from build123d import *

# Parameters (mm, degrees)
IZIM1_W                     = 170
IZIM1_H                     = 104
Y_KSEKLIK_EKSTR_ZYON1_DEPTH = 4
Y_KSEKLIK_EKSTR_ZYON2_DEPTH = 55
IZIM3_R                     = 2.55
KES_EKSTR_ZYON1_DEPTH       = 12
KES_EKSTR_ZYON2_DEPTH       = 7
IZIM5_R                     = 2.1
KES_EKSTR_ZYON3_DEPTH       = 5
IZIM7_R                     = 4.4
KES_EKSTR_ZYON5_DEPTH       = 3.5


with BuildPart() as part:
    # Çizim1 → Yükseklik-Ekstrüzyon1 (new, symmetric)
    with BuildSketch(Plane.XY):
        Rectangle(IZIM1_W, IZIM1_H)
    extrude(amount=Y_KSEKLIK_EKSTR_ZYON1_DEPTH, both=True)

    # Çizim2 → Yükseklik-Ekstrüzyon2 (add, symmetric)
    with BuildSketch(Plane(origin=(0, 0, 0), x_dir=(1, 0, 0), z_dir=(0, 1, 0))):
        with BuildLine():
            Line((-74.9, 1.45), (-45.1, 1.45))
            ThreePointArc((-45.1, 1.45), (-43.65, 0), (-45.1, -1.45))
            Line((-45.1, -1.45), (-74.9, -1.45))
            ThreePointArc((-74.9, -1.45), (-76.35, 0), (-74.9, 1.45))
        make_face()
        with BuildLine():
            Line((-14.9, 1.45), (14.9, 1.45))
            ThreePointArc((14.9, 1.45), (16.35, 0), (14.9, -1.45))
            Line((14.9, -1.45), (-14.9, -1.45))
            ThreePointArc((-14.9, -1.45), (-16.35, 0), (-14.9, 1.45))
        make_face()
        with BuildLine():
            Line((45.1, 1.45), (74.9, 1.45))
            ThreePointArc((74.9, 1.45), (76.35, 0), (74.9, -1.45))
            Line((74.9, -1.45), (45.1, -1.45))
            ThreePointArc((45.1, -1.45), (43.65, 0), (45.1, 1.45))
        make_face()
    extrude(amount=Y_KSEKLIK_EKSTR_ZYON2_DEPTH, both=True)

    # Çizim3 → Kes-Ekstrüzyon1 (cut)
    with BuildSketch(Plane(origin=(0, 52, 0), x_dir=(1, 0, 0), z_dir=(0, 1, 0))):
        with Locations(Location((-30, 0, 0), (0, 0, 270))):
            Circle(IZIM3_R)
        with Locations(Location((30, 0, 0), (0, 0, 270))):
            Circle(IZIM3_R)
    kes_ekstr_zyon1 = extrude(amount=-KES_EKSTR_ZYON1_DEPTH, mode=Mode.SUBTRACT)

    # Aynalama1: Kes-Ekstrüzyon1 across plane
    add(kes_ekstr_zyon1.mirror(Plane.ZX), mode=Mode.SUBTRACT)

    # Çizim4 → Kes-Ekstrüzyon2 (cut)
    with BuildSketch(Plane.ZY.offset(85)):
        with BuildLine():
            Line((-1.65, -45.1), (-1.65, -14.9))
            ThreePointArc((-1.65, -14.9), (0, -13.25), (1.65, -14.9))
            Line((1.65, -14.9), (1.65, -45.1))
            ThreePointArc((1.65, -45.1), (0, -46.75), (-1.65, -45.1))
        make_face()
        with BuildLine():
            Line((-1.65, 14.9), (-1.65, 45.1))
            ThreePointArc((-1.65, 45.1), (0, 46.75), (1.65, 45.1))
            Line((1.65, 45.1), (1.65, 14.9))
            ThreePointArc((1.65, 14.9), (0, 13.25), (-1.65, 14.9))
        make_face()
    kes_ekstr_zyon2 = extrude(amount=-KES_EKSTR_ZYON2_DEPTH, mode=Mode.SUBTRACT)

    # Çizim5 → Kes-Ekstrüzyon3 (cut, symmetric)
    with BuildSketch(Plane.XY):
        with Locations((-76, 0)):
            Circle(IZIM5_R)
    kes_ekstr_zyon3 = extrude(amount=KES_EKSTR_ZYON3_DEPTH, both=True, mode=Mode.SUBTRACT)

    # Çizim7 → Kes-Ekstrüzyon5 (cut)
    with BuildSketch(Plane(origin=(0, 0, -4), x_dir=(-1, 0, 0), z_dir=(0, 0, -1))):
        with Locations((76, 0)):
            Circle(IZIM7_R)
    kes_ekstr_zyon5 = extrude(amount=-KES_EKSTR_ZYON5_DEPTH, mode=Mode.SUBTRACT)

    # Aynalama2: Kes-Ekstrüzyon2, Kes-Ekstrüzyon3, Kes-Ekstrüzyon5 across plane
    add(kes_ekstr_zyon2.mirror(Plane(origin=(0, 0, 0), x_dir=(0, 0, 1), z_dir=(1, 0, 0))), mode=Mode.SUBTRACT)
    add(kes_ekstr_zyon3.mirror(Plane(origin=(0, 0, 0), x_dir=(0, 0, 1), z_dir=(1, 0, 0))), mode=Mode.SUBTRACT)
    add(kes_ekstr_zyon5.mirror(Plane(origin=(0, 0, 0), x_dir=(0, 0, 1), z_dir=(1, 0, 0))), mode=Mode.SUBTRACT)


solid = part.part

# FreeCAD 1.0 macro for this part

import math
import FreeCAD as App
import Part
import Sketcher
from FreeCAD import Vector

doc = App.newDocument("Part")
params = doc.addObject("Spreadsheet::Sheet", "Params")
for row, (alias, value) in enumerate([
    ("sketch1_width", "170 mm"),
    ("sketch1_height", "104 mm"),
    ("pad1_length", "8 mm"),
    ("sketch2_radius", "1.45 mm"),
    ("sketch2_width", "29.8 mm"),
    ("pad2_length", "110 mm"),
    ("sketch3_diameter", "5.1 mm"),
    ("pocket1_length", "12 mm"),
    ("sketch4_radius", "1.65 mm"),
    ("sketch4_width", "30.2 mm"),
    ("pocket2_length", "7 mm"),
    ("sketch5_diameter", "4.2 mm"),
    ("pocket3_length", "10 mm"),
    ("sketch6_diameter", "8.8 mm"),
    ("pocket4_length", "3.5 mm"),
], start=1):
    params.set(f"A{row}", alias)
    params.set(f"B{row}", "=" + value)
    params.setAlias(f"B{row}", alias)

body = doc.addObject("PartDesign::Body", "Body")

# Sketch on XY plane
sketch1 = body.newObject("Sketcher::SketchObject", "Sketch")
sketch1.AttachmentSupport = (doc.getObject("XY_Plane"), [""])
sketch1.MapMode = "FlatFace"
sketch1.addGeometry([
    Part.LineSegment(Vector(-85, 52, 0), Vector(-85, -52, 0)),
    Part.LineSegment(Vector(-85, -52, 0), Vector(85, -52, 0)),
    Part.LineSegment(Vector(85, -52, 0), Vector(85, 52, 0)),
    Part.LineSegment(Vector(85, 52, 0), Vector(-85, 52, 0)),
], False)
sketch1.addConstraint([
    Sketcher.Constraint("Coincident", 0, 2, 1, 1),
    Sketcher.Constraint("Coincident", 1, 2, 2, 1),
    Sketcher.Constraint("Coincident", 2, 2, 3, 1),
    Sketcher.Constraint("Coincident", 3, 2, 0, 1),
    Sketcher.Constraint("Vertical", 0),
    Sketcher.Constraint("Horizontal", 1),
    Sketcher.Constraint("Vertical", 2),
    Sketcher.Constraint("Horizontal", 3),
    Sketcher.Constraint("Symmetric", 0, 2, 2, 2, -1, 1),
    Sketcher.Constraint("DistanceX", 1, 1, 1, 2, 170.0),
    Sketcher.Constraint("DistanceY", 0, 2, 0, 1, 104.0),
])
sketch1.setExpression("Constraints[9]", "Params.sketch1_width")
sketch1.setExpression("Constraints[10]", "Params.sketch1_height")
pad1 = body.newObject("PartDesign::Pad", "Pad")
pad1.Profile = sketch1
pad1.setExpression("Length", "Params.pad1_length")
pad1.Midplane = True

# Sketch on XZ plane
sketch2 = body.newObject("Sketcher::SketchObject", "Sketch001")
sketch2.AttachmentSupport = (doc.getObject("XZ_Plane"), [""])
sketch2.MapMode = "FlatFace"
sketch2.addGeometry([
    Part.LineSegment(Vector(-45.1, -1.45, 0), Vector(-74.9, -1.45, 0)),  # 0
    Part.ArcOfCircle(Part.Circle(Vector(-74.9, 0, 0), Vector(0, 0, 1), 1.45), math.radians(90), math.radians(270)),  # 1
    Part.LineSegment(Vector(-74.9, 1.45, 0), Vector(-45.1, 1.45, 0)),  # 2
    Part.ArcOfCircle(Part.Circle(Vector(-45.1, 0, 0), Vector(0, 0, 1), 1.45), math.radians(-90), math.radians(90)),  # 3
    Part.LineSegment(Vector(14.9, -1.45, 0), Vector(-14.9, -1.45, 0)),  # 4
    Part.ArcOfCircle(Part.Circle(Vector(-14.9, 0, 0), Vector(0, 0, 1), 1.45), math.radians(90), math.radians(270)),  # 5
    Part.LineSegment(Vector(-14.9, 1.45, 0), Vector(14.9, 1.45, 0)),  # 6
    Part.ArcOfCircle(Part.Circle(Vector(14.9, 0, 0), Vector(0, 0, 1), 1.45), math.radians(-90), math.radians(90)),  # 7
    Part.LineSegment(Vector(74.9, -1.45, 0), Vector(45.1, -1.45, 0)),  # 8
    Part.ArcOfCircle(Part.Circle(Vector(45.1, 0, 0), Vector(0, 0, 1), 1.45), math.radians(90), math.radians(270)),  # 9
    Part.LineSegment(Vector(45.1, 1.45, 0), Vector(74.9, 1.45, 0)),  # 10
    Part.ArcOfCircle(Part.Circle(Vector(74.9, 0, 0), Vector(0, 0, 1), 1.45), math.radians(-90), math.radians(90)),  # 11
], False)
sketch2.addConstraint([
    Sketcher.Constraint("Tangent", 0, 2, 1, 2),
    Sketcher.Constraint("Tangent", 1, 1, 2, 1),
    Sketcher.Constraint("Tangent", 2, 2, 3, 2),
    Sketcher.Constraint("Tangent", 3, 1, 0, 1),
    Sketcher.Constraint("Tangent", 4, 2, 5, 2),
    Sketcher.Constraint("Tangent", 5, 1, 6, 1),
    Sketcher.Constraint("Tangent", 6, 2, 7, 2),
    Sketcher.Constraint("Tangent", 7, 1, 4, 1),
    Sketcher.Constraint("Tangent", 8, 2, 9, 2),
    Sketcher.Constraint("Tangent", 9, 1, 10, 1),
    Sketcher.Constraint("Tangent", 10, 2, 11, 2),
    Sketcher.Constraint("Tangent", 11, 1, 8, 1),
    Sketcher.Constraint("Horizontal", 0),
    Sketcher.Constraint("Horizontal", 2),
    Sketcher.Constraint("Horizontal", 4),
    Sketcher.Constraint("Horizontal", 6),
    Sketcher.Constraint("Horizontal", 8),
    Sketcher.Constraint("Horizontal", 10),
    Sketcher.Constraint("Equal", 3, 5),
    Sketcher.Constraint("Equal", 7, 9),
    Sketcher.Constraint("Symmetric", 5, 3, 7, 3, -1, 1),
    Sketcher.Constraint("Symmetric", 3, 3, 9, 3, -1, 1),
    Sketcher.Constraint("Symmetric", 1, 3, 11, 3, -2),
    Sketcher.Constraint("Equal", 2, 4),
    Sketcher.Constraint("Radius", 1, 1.45),
    Sketcher.Constraint("DistanceX", 0, 2, 0, 1, 29.8),
    Sketcher.Constraint("DistanceX", 1, 3, 5, 3, 60.0),
])
sketch2.setExpression("Constraints[24]", "Params.sketch2_radius")
sketch2.setExpression("Constraints[25]", "Params.sketch2_width")
pad2 = body.newObject("PartDesign::Pad", "Pad001")
pad2.Profile = sketch2
pad2.setExpression("Length", "Params.pad2_length")
pad2.Midplane = True

# Sketch on XZ plane
sketch3 = body.newObject("Sketcher::SketchObject", "Sketch002")
sketch3.AttachmentSupport = (doc.getObject("XZ_Plane"), [""])
sketch3.MapMode = "FlatFace"
sketch3.AttachmentOffset = App.Placement(Vector(0, 0, -52), App.Rotation())
sketch3.addGeometry([
    Part.Circle(Vector(-30, 0, 0), Vector(0, 0, 1), 2.55),
    Part.Circle(Vector(30, 0, 0), Vector(0, 0, 1), 2.55),
], False)
sketch3.addConstraint([
    Sketcher.Constraint("Equal", 0, 1),
    Sketcher.Constraint("Symmetric", 0, 3, 1, 3, -1, 1),
    Sketcher.Constraint("PointOnObject", 0, 3, -1),
    Sketcher.Constraint("Diameter", 0, 5.1),
    Sketcher.Constraint("DistanceX", 0, 3, -1, 1, 30.0),
])
sketch3.setExpression("Constraints[3]", "Params.sketch3_diameter")
pocket1 = body.newObject("PartDesign::Pocket", "Pocket")
pocket1.Profile = sketch3
pocket1.setExpression("Length", "Params.pocket1_length")
pocket1.Reversed = True
doc.recompute()

mirrored = body.newObject("PartDesign::Mirrored", "Mirrored")
mirrored.Originals = [pocket1]
mirrored.MirrorPlane = (doc.getObject("XZ_Plane"), [""])
body.Tip = mirrored

# Sketch on YZ plane
sketch4 = body.newObject("Sketcher::SketchObject", "Sketch003")
sketch4.AttachmentSupport = (doc.getObject("YZ_Plane"), [""])
sketch4.MapMode = "FlatFace"
sketch4.AttachmentOffset = App.Placement(Vector(0, 0, -85), App.Rotation())
sketch4.addGeometry([
    Part.LineSegment(Vector(-14.9, -1.65, 0), Vector(-45.1, -1.65, 0)),  # 0
    Part.ArcOfCircle(Part.Circle(Vector(-45.1, 0, 0), Vector(0, 0, 1), 1.65), math.radians(90), math.radians(270)),  # 1
    Part.LineSegment(Vector(-45.1, 1.65, 0), Vector(-14.9, 1.65, 0)),  # 2
    Part.ArcOfCircle(Part.Circle(Vector(-14.9, 0, 0), Vector(0, 0, 1), 1.65), math.radians(-90), math.radians(90)),  # 3
    Part.LineSegment(Vector(45.1, -1.65, 0), Vector(14.9, -1.65, 0)),  # 4
    Part.ArcOfCircle(Part.Circle(Vector(14.9, 0, 0), Vector(0, 0, 1), 1.65), math.radians(90), math.radians(270)),  # 5
    Part.LineSegment(Vector(14.9, 1.65, 0), Vector(45.1, 1.65, 0)),  # 6
    Part.ArcOfCircle(Part.Circle(Vector(45.1, 0, 0), Vector(0, 0, 1), 1.65), math.radians(-90), math.radians(90)),  # 7
], False)
sketch4.addConstraint([
    Sketcher.Constraint("Tangent", 0, 2, 1, 2),
    Sketcher.Constraint("Tangent", 1, 1, 2, 1),
    Sketcher.Constraint("Tangent", 2, 2, 3, 2),
    Sketcher.Constraint("Tangent", 3, 1, 0, 1),
    Sketcher.Constraint("Tangent", 4, 2, 5, 2),
    Sketcher.Constraint("Tangent", 5, 1, 6, 1),
    Sketcher.Constraint("Tangent", 6, 2, 7, 2),
    Sketcher.Constraint("Tangent", 7, 1, 4, 1),
    Sketcher.Constraint("Horizontal", 0),
    Sketcher.Constraint("Horizontal", 2),
    Sketcher.Constraint("Horizontal", 4),
    Sketcher.Constraint("Horizontal", 6),
    Sketcher.Constraint("Equal", 3, 5),
    Sketcher.Constraint("Symmetric", 3, 3, 5, 3, -1, 1),
    Sketcher.Constraint("Symmetric", 1, 3, 7, 3, -2),
    Sketcher.Constraint("Radius", 1, 1.65),
    Sketcher.Constraint("DistanceX", 0, 2, 0, 1, 30.2),
    Sketcher.Constraint("DistanceX", 1, 3, 5, 3, 60.0),
])
sketch4.setExpression("Constraints[15]", "Params.sketch4_radius")
sketch4.setExpression("Constraints[16]", "Params.sketch4_width")
pocket2 = body.newObject("PartDesign::Pocket", "Pocket001")
pocket2.Profile = sketch4
pocket2.setExpression("Length", "Params.pocket2_length")
pocket2.Reversed = True

# Sketch on XY plane
sketch5 = body.newObject("Sketcher::SketchObject", "Sketch004")
sketch5.AttachmentSupport = (doc.getObject("XY_Plane"), [""])
sketch5.MapMode = "FlatFace"
sketch5.addGeometry(Part.Circle(Vector(-76, 0, 0), Vector(0, 0, 1), 2.1), False)
sketch5.addConstraint([
    Sketcher.Constraint("PointOnObject", 0, 3, -1),
    Sketcher.Constraint("Diameter", 0, 4.2),
    Sketcher.Constraint("DistanceX", 0, 3, -1, 1, 76.0),
])
sketch5.setExpression("Constraints[1]", "Params.sketch5_diameter")
pocket3 = body.newObject("PartDesign::Pocket", "Pocket002")
pocket3.Profile = sketch5
pocket3.setExpression("Length", "Params.pocket3_length")
pocket3.Midplane = True

# Sketch on XY plane
sketch6 = body.newObject("Sketcher::SketchObject", "Sketch005")
sketch6.AttachmentSupport = (doc.getObject("XY_Plane"), [""])
sketch6.MapMode = "FlatFace"
sketch6.AttachmentOffset = App.Placement(Vector(0, 0, -4), App.Rotation())
sketch6.addGeometry(Part.Circle(Vector(-76, 0, 0), Vector(0, 0, 1), 4.4), False)
sketch6.addConstraint([
    Sketcher.Constraint("PointOnObject", 0, 3, -1),
    Sketcher.Constraint("Diameter", 0, 8.8),
    Sketcher.Constraint("DistanceX", 0, 3, -1, 1, 76.0),
])
sketch6.setExpression("Constraints[1]", "Params.sketch6_diameter")
pocket4 = body.newObject("PartDesign::Pocket", "Pocket003")
pocket4.Profile = sketch6
pocket4.setExpression("Length", "Params.pocket4_length")
pocket4.Reversed = True
doc.recompute()

mirrored2 = body.newObject("PartDesign::Mirrored", "Mirrored001")
mirrored2.Originals = [pocket2, pocket3, pocket4]
mirrored2.MirrorPlane = (doc.getObject("YZ_Plane"), [""])
body.Tip = mirrored2

doc.recompute()
